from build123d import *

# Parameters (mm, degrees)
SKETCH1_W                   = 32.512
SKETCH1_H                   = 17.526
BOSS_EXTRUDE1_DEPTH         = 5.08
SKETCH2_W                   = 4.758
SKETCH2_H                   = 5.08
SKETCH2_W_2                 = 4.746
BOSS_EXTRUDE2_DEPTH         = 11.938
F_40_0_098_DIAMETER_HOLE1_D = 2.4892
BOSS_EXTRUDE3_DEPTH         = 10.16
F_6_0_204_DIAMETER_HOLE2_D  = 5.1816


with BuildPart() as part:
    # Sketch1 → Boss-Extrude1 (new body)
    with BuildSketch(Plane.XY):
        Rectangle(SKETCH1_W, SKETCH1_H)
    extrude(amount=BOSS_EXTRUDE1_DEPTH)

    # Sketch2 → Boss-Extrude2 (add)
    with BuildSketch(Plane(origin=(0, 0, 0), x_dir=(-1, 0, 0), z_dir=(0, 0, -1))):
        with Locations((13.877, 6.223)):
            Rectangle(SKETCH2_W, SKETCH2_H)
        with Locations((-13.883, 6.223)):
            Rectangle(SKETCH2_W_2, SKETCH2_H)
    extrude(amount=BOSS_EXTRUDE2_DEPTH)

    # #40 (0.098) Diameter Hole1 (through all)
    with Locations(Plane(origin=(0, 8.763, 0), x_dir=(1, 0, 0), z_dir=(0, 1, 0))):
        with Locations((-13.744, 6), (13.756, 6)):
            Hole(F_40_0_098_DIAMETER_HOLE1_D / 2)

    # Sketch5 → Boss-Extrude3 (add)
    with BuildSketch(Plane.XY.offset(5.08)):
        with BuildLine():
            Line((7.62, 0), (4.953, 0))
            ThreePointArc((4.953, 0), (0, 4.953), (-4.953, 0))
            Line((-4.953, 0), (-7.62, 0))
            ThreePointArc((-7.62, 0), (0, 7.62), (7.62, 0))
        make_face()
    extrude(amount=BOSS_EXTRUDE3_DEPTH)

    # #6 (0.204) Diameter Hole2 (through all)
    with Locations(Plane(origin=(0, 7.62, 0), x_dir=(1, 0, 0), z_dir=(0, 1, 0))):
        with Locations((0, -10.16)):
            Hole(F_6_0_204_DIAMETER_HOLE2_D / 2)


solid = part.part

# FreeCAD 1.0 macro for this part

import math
import FreeCAD as App
import Part
import Sketcher
Q = App.Units.Quantity


def add_polygon(sketch, points):
    """Adds a closed chain of lines whose ends are joined by coincident constraints."""
    first, n = sketch.GeometryCount, len(points)
    for a, b in zip(points, points[1:] + points[:1]):
        sketch.addGeometry(Part.LineSegment(App.Vector(*a, 0), App.Vector(*b, 0)), False)
    for i in range(n):
        sketch.addConstraint(Sketcher.Constraint("Coincident", first + i, 2, first + (i + 1) % n, 1))

doc = App.newDocument("Part")
body = doc.addObject("PartDesign::Body", "Body")

# Sketch on XY plane
sketch1 = doc.addObject("Sketcher::SketchObject", "Sketch")
body.addObject(sketch1)
sketch1.AttachmentSupport = (doc.XY_Plane, [""])
sketch1.MapMode = "FlatFace"
add_polygon(sketch1, [(-16, 9), (-16, -9), (16, -9), (16, 9)])  # lines 0-3
sketch1.addConstraint([
    Sketcher.Constraint("Vertical", 0),
    Sketcher.Constraint("Horizontal", 1),
    Sketcher.Constraint("Vertical", 2),
    Sketcher.Constraint("Horizontal", 3),
    Sketcher.Constraint("Symmetric", 0, 2, 2, 2, -1, 1),
    Sketcher.Constraint("DistanceX", 1, 1, 1, 2, Q("1.28 in")),
    Sketcher.Constraint("DistanceY", 0, 2, 0, 1, Q("0.69 in")),
])
pad1 = doc.addObject("PartDesign::Pad", "Pad")
body.addObject(pad1)
pad1.Profile = sketch1
pad1.Length = Q("0.2 in")

# Sketch on XY plane
sketch2 = doc.addObject("Sketcher::SketchObject", "Sketch001")
body.addObject(sketch2)
sketch2.AttachmentSupport = (doc.XY_Plane, [""])
sketch2.MapMode = "FlatFace"
add_polygon(sketch2, [(-11.5, 8.8), (-11.5, 3.7), (-16.3, 3.7), (-16.3, 8.8)])  # lines 0-3
add_polygon(sketch2, [(16.3, 8.8), (16.3, 3.7), (11.5, 3.7), (11.5, 8.8)])  # lines 4-7
sketch2.addConstraint([
    Sketcher.Constraint("Vertical", 0),
    Sketcher.Constraint("Horizontal", 1),
    Sketcher.Constraint("Vertical", 2),
    Sketcher.Constraint("Horizontal", 3),
    Sketcher.Constraint("Vertical", 4),
    Sketcher.Constraint("Horizontal", 5),
    Sketcher.Constraint("Vertical", 6),
    Sketcher.Constraint("Horizontal", 7),
    Sketcher.Constraint("Symmetric", 1, 2, 4, 2, -2),
    Sketcher.Constraint("Horizontal", 3, 2, 6, 2),
    Sketcher.Constraint("DistanceY", 0, 2, 0, 1, Q("0.2 in")),
    Sketcher.Constraint("DistanceX", 1, 2, -1, 1, Q("0.64 in")),
    Sketcher.Constraint("DistanceY", -1, 1, 0, 2, Q("0.145 in")),
    Sketcher.Constraint("DistanceX", 1, 2, 1, 1, Q("4.758 mm")),
    Sketcher.Constraint("DistanceX", 5, 2, 5, 1, Q("4.746 mm")),
])
pad2 = doc.addObject("PartDesign::Pad", "Pad001")
body.addObject(pad2)
pad2.Profile = sketch2
pad2.Length = Q("0.47 in")
pad2.Reversed = True

# Sketch on XZ plane
sketch3 = doc.addObject("Sketcher::SketchObject", "Sketch002")
body.addObject(sketch3)
sketch3.AttachmentSupport = (doc.XZ_Plane, [""])
sketch3.MapMode = "FlatFace"
sketch3.AttachmentOffset = App.Placement(App.Vector(0, 0, -0.345 * 25.4), App.Rotation())
sketch3.addGeometry([
    Part.Circle(App.Vector(-13.7, -6, 0), App.Vector(0, 0, 1), 1.2),
    Part.Circle(App.Vector(13.8, -6, 0), App.Vector(0, 0, 1), 1.2),
], False)
sketch3.addConstraint([
    Sketcher.Constraint("Equal", 0, 1),
    Sketcher.Constraint("Horizontal", 0, 3, 1, 3),
    Sketcher.Constraint("Diameter", 0, Q("0.098 in")),
    Sketcher.Constraint("DistanceX", 0, 3, -1, 1, Q("13.744 mm")),
    Sketcher.Constraint("DistanceY", 0, 3, -1, 1, Q("6 mm")),
    Sketcher.Constraint("DistanceX", -1, 1, 1, 3, Q("13.756 mm")),
])
doc.recompute()
hole = doc.addObject("PartDesign::Hole", "Hole")
body.addObject(hole)
hole.Profile = sketch3
hole.ThreadType = "None"
hole.Diameter = Q("0.098 in")
hole.DepthType = "ThroughAll"
hole.Reversed = True

# Sketch on XY plane
sketch4 = doc.addObject("Sketcher::SketchObject", "Sketch003")
body.addObject(sketch4)
sketch4.AttachmentSupport = (doc.XY_Plane, [""])
sketch4.MapMode = "FlatFace"
sketch4.AttachmentOffset = App.Placement(App.Vector(0, 0, 0.2 * 25.4), App.Rotation())
sketch4.addGeometry([
    Part.LineSegment(App.Vector(5, 0, 0), App.Vector(7.6, 0, 0)),
    Part.ArcOfCircle(Part.Circle(App.Vector(0, 0, 0), App.Vector(0, 0, 1), 7.6), math.radians(0), math.radians(180)),
    Part.LineSegment(App.Vector(-7.6, 0, 0), App.Vector(-5, 0, 0)),
    Part.ArcOfCircle(Part.Circle(App.Vector(0, 0, 0), App.Vector(0, 0, 1), 5), math.radians(0), math.radians(180)),
], False)
sketch4.addConstraint([
    Sketcher.Constraint("Coincident", 0, 2, 1, 1),
    Sketcher.Constraint("Coincident", 1, 2, 2, 1),
    Sketcher.Constraint("Coincident", 2, 2, 3, 2),
    Sketcher.Constraint("Coincident", 3, 1, 0, 1),
    Sketcher.Constraint("Horizontal", 0),
    Sketcher.Constraint("Horizontal", 2),
    Sketcher.Constraint("Coincident", 1, 3, -1, 1),
    Sketcher.Constraint("Coincident", 3, 3, -1, 1),
    Sketcher.Constraint("PointOnObject", 0, 2, -1),
    Sketcher.Constraint("PointOnObject", 1, 2, -1),
    Sketcher.Constraint("Radius", 1, Q("0.3 in")),
    Sketcher.Constraint("Radius", 3, Q("0.195 in")),
])
pad3 = doc.addObject("PartDesign::Pad", "Pad002")
body.addObject(pad3)
pad3.Profile = sketch4
pad3.Length = Q("0.4 in")

# Sketch on XZ plane
sketch5 = doc.addObject("Sketcher::SketchObject", "Sketch004")
body.addObject(sketch5)
sketch5.AttachmentSupport = (doc.XZ_Plane, [""])
sketch5.MapMode = "FlatFace"
sketch5.AttachmentOffset = App.Placement(App.Vector(0, 0, -0.3 * 25.4), App.Rotation())
sketch5.addGeometry(Part.Circle(App.Vector(0, 10.2, 0), App.Vector(0, 0, 1), 2.6), False)
sketch5.addConstraint([
    Sketcher.Constraint("PointOnObject", 0, 3, -2),
    Sketcher.Constraint("Diameter", 0, Q("0.204 in")),
    Sketcher.Constraint("DistanceY", -1, 1, 0, 3, Q("0.4 in")),
])
doc.recompute()
hole2 = doc.addObject("PartDesign::Hole", "Hole001")
body.addObject(hole2)
hole2.Profile = sketch5
hole2.ThreadType = "None"
hole2.Diameter = Q("0.204 in")
hole2.DepthType = "ThroughAll"
hole2.Reversed = True

doc.recompute()
